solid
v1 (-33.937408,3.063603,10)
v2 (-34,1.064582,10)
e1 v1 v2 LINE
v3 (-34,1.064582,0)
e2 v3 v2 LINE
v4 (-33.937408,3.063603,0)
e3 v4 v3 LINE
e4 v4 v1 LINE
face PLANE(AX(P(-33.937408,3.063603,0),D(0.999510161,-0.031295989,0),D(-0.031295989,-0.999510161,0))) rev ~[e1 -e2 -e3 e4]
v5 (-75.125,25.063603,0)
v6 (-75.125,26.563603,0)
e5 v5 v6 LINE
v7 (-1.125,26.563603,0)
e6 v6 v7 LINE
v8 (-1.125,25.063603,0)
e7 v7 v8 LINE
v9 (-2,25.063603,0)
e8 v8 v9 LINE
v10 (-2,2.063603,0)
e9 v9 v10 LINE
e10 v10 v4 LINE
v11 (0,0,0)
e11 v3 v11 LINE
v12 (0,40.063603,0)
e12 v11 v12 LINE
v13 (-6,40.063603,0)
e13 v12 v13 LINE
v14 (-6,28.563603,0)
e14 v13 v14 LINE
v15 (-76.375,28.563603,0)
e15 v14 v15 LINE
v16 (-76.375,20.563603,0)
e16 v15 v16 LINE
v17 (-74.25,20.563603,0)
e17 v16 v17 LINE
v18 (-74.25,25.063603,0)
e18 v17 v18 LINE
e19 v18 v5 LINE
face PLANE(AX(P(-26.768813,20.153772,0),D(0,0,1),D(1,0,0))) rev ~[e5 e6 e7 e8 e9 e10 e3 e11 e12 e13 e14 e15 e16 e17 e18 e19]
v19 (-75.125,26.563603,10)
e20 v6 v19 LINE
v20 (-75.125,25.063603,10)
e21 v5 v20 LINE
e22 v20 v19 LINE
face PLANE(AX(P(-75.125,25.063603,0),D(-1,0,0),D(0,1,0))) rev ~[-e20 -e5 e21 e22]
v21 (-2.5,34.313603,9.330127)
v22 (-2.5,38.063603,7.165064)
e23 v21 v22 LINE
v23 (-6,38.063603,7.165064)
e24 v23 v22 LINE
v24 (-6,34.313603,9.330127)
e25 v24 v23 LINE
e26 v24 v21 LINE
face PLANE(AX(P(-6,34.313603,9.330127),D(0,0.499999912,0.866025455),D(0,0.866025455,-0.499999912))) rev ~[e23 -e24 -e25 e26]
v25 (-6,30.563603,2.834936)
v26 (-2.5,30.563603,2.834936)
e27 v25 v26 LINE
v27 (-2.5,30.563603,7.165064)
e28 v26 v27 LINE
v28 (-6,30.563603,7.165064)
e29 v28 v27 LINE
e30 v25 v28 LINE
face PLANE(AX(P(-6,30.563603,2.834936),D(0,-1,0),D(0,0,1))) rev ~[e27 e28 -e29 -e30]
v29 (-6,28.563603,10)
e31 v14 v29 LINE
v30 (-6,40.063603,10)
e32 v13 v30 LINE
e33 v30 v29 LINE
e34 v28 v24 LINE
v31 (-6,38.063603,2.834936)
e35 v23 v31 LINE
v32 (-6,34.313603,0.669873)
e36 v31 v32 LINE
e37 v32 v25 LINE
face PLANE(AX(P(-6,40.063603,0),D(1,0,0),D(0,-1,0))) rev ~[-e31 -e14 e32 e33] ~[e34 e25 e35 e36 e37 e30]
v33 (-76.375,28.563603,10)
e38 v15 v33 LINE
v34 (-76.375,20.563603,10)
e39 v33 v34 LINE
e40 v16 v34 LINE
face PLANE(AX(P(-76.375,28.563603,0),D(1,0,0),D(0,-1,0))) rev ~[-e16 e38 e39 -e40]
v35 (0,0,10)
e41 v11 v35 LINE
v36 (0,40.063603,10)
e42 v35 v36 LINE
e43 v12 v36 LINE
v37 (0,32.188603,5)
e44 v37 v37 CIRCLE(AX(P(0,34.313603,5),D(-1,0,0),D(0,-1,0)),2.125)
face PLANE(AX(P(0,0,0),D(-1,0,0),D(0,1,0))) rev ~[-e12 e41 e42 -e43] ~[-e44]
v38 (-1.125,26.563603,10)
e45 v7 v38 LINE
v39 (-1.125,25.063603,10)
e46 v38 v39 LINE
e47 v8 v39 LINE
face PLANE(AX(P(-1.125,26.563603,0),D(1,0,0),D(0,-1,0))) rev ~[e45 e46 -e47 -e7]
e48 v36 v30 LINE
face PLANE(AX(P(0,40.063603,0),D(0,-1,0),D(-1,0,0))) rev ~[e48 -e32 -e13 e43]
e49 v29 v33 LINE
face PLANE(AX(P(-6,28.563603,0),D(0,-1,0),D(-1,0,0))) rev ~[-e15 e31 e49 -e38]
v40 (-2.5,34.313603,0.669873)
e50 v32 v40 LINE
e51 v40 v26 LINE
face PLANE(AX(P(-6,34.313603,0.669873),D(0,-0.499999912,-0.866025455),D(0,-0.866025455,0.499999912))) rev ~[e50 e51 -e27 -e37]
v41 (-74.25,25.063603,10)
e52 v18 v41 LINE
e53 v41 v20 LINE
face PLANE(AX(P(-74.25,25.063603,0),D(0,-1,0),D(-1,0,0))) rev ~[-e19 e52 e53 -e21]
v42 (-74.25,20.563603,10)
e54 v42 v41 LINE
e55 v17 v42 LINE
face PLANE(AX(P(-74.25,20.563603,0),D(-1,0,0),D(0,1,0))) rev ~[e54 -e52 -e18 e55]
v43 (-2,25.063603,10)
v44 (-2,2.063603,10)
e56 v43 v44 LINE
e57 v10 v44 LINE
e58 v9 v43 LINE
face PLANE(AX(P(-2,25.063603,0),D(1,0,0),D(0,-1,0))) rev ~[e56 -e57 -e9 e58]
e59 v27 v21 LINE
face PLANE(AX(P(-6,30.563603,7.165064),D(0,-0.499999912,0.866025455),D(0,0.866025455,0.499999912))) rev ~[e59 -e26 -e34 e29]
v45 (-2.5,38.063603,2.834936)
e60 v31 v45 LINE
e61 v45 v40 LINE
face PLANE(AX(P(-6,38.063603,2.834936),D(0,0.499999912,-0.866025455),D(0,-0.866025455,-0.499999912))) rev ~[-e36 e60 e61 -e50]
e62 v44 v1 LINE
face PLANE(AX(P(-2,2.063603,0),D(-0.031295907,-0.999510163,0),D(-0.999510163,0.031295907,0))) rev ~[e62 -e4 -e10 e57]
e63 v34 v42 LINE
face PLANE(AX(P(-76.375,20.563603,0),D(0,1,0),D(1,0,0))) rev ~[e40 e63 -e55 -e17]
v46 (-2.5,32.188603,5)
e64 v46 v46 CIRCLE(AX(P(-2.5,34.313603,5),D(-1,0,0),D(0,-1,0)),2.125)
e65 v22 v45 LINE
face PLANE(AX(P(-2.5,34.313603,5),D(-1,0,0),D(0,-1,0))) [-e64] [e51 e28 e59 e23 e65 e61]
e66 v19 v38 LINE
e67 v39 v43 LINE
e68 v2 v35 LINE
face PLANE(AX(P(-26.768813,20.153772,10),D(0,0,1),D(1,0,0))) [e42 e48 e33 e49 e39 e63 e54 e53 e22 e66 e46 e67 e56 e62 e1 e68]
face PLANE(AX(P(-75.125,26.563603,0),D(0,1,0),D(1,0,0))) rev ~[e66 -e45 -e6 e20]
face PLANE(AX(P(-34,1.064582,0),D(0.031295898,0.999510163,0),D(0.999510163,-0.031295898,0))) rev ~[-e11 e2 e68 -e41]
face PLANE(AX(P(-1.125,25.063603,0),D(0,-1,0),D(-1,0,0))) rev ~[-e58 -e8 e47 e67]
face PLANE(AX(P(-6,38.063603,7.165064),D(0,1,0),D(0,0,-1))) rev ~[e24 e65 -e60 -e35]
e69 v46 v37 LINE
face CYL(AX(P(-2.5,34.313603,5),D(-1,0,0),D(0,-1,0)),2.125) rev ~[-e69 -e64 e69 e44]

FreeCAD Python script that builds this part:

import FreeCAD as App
import Part
import Sketcher
from FreeCAD import Vector
Q = App.Units.Quantity


def add_polygon(sketch, points):
    """Adds a closed chain of lines whose ends are joined by coincident constraints."""
    first, n = sketch.GeometryCount, len(points)
    for a, b in zip(points, points[1:] + points[:1]):
        sketch.addGeometry(Part.LineSegment(App.Vector(*a, 0), App.Vector(*b, 0)), False)
    for i in range(n):
        sketch.addConstraint(Sketcher.Constraint("Coincident", first + i, 2, first + (i + 1) % n, 1))

doc = App.newDocument("Part")
body = doc.addObject("PartDesign::Body", "Body")

sketch1 = body.newObject("Sketcher::SketchObject", "Sketch")
sketch1.AttachmentSupport = (doc.getObject("XY_Plane"), [""])
sketch1.MapMode = "FlatFace"
add_polygon(sketch1, [(-75.1, 26.6), (-1.1, 26.6), (-1.1, 25.1), (-2, 25.1), (-2, 2.1), (-33.9, 3.1), (-34, 1.1), (0, 0), (0, 40.1), (-6, 40.1), (-6, 28.6), (-76.4, 28.6), (-76.4, 20.6), (-74.2, 20.6), (-74.2, 25.1), (-75.1, 25.1)])
sketch1.addConstraint([
    Sketcher.Constraint("Horizontal", 0),
    Sketcher.Constraint("Vertical", 1),
    Sketcher.Constraint("Horizontal", 2),
    Sketcher.Constraint("Vertical", 3),
    Sketcher.Constraint("Vertical", 7),
    Sketcher.Constraint("Horizontal", 8),
    Sketcher.Constraint("Vertical", 9),
    Sketcher.Constraint("Horizontal", 10),
    Sketcher.Constraint("Vertical", 11),
    Sketcher.Constraint("Horizontal", 12),
    Sketcher.Constraint("Vertical", 13),
    Sketcher.Constraint("Horizontal", 14),
    Sketcher.Constraint("Vertical", 15),
    Sketcher.Constraint("Coincident", 6, 2, -1, 1),
    Sketcher.Constraint("Perpendicular", 4, 5),
    Sketcher.Constraint("Perpendicular", 5, 6),
    Sketcher.Constraint("Horizontal", 2, 2, 13, 2),
    Sketcher.Constraint("Equal", 2, 14),
    Sketcher.Constraint("DistanceX", 0, 1, 0, 2, Q("74 mm")),
    Sketcher.Constraint("DistanceX", 8, 2, 8, 1, Q("6 mm")),
    Sketcher.Constraint("DistanceY", 3, 2, 3, 1, Q("23 mm")),
    Sketcher.Constraint("DistanceY", 11, 2, 11, 1, Q("8 mm")),
    Sketcher.Constraint("Distance", 5, Q("2.000001 mm")),
    Sketcher.Constraint("DistanceY", 1, 2, 1, 1, Q("1.5 mm")),
    Sketcher.Constraint("DistanceY", 9, 2, 9, 1, Q("11.5 mm")),
    Sketcher.Constraint("DistanceY", 13, 1, 13, 2, Q("4.5 mm")),
    Sketcher.Constraint("DistanceX", 2, 2, -1, 1, Q("2 mm")),
    Sketcher.Constraint("DistanceX", 5, 2, -1, 1, Q("34 mm")),
    Sketcher.Constraint("DistanceY", 3, 2, 4, 2, Q("1 mm")),
    Sketcher.Constraint("DistanceX", 2, 2, 2, 1, Q("0.875 mm")),
    Sketcher.Constraint("DistanceX", 10, 2, 10, 1, Q("70.375 mm")),
])
pad1 = body.newObject("PartDesign::Pad", "Pad")
pad1.Profile = sketch1
pad1.Length = 10

sketch2 = body.newObject("Sketcher::SketchObject", "Sketch001")
sketch2.AttachmentSupport = (doc.getObject("YZ_Plane"), [""])
sketch2.MapMode = "FlatFace"
sketch2.AttachmentOffset = App.Placement(Vector(0, 0, -6), App.Rotation())
add_polygon(sketch2, [(30.6, 2.8), (30.6, 7.2), (34.3, 9.3), (38.1, 7.2), (38.1, 2.8), (34.3, 0.7)])
sketch2.addConstraint([
    Sketcher.Constraint("Vertical", 0),
    Sketcher.Constraint("Vertical", 3),
    Sketcher.Constraint("Parallel", 1, 4),
    Sketcher.Constraint("Parallel", 2, 5),
    Sketcher.Constraint("Horizontal", 0, 2, 2, 2),
    Sketcher.Constraint("Horizontal", 3, 2, 5, 2),
    Sketcher.Constraint("Vertical", 1, 2, 4, 2),
    Sketcher.Constraint("Angle", 1, Q("29.999994 deg")),
    Sketcher.Constraint("DistanceX", 0, 2, 2, 2, Q("7.5 mm")),
    Sketcher.Constraint("DistanceY", 0, 1, 0, 2, Q("4.330128 mm")),
    Sketcher.Constraint("DistanceX", -1, 1, 0, 2, Q("30.563603 mm")),
    Sketcher.Constraint("DistanceY", -1, 1, 0, 2, Q("7.165064 mm")),
])
pocket1 = body.newObject("PartDesign::Pocket", "Pocket")
pocket1.Profile = sketch2
pocket1.Length = 3.5
pocket1.Reversed = True

sketch3 = body.newObject("Sketcher::SketchObject", "Sketch002")
sketch3.AttachmentSupport = (doc.getObject("YZ_Plane"), [""])
sketch3.MapMode = "FlatFace"
sketch3.AttachmentOffset = App.Placement(Vector(0, 0, -2.5), App.Rotation())
sketch3.addGeometry(Part.Circle(Vector(34.3, 5, 0), Vector(0, 0, 1), 2.1), False)
sketch3.addConstraint([
    Sketcher.Constraint("Diameter", 0, Q("4.25 mm")),
    Sketcher.Constraint("DistanceY", -1, 1, 0, 3, Q("5 mm")),
    Sketcher.Constraint("DistanceX", -1, 1, 0, 3, Q("34.313603 mm")),
])
pocket2 = body.newObject("PartDesign::Pocket", "Pocket001")
pocket2.Profile = sketch3
pocket2.Type = "ThroughAll"
pocket2.Reversed = True

doc.recompute()
